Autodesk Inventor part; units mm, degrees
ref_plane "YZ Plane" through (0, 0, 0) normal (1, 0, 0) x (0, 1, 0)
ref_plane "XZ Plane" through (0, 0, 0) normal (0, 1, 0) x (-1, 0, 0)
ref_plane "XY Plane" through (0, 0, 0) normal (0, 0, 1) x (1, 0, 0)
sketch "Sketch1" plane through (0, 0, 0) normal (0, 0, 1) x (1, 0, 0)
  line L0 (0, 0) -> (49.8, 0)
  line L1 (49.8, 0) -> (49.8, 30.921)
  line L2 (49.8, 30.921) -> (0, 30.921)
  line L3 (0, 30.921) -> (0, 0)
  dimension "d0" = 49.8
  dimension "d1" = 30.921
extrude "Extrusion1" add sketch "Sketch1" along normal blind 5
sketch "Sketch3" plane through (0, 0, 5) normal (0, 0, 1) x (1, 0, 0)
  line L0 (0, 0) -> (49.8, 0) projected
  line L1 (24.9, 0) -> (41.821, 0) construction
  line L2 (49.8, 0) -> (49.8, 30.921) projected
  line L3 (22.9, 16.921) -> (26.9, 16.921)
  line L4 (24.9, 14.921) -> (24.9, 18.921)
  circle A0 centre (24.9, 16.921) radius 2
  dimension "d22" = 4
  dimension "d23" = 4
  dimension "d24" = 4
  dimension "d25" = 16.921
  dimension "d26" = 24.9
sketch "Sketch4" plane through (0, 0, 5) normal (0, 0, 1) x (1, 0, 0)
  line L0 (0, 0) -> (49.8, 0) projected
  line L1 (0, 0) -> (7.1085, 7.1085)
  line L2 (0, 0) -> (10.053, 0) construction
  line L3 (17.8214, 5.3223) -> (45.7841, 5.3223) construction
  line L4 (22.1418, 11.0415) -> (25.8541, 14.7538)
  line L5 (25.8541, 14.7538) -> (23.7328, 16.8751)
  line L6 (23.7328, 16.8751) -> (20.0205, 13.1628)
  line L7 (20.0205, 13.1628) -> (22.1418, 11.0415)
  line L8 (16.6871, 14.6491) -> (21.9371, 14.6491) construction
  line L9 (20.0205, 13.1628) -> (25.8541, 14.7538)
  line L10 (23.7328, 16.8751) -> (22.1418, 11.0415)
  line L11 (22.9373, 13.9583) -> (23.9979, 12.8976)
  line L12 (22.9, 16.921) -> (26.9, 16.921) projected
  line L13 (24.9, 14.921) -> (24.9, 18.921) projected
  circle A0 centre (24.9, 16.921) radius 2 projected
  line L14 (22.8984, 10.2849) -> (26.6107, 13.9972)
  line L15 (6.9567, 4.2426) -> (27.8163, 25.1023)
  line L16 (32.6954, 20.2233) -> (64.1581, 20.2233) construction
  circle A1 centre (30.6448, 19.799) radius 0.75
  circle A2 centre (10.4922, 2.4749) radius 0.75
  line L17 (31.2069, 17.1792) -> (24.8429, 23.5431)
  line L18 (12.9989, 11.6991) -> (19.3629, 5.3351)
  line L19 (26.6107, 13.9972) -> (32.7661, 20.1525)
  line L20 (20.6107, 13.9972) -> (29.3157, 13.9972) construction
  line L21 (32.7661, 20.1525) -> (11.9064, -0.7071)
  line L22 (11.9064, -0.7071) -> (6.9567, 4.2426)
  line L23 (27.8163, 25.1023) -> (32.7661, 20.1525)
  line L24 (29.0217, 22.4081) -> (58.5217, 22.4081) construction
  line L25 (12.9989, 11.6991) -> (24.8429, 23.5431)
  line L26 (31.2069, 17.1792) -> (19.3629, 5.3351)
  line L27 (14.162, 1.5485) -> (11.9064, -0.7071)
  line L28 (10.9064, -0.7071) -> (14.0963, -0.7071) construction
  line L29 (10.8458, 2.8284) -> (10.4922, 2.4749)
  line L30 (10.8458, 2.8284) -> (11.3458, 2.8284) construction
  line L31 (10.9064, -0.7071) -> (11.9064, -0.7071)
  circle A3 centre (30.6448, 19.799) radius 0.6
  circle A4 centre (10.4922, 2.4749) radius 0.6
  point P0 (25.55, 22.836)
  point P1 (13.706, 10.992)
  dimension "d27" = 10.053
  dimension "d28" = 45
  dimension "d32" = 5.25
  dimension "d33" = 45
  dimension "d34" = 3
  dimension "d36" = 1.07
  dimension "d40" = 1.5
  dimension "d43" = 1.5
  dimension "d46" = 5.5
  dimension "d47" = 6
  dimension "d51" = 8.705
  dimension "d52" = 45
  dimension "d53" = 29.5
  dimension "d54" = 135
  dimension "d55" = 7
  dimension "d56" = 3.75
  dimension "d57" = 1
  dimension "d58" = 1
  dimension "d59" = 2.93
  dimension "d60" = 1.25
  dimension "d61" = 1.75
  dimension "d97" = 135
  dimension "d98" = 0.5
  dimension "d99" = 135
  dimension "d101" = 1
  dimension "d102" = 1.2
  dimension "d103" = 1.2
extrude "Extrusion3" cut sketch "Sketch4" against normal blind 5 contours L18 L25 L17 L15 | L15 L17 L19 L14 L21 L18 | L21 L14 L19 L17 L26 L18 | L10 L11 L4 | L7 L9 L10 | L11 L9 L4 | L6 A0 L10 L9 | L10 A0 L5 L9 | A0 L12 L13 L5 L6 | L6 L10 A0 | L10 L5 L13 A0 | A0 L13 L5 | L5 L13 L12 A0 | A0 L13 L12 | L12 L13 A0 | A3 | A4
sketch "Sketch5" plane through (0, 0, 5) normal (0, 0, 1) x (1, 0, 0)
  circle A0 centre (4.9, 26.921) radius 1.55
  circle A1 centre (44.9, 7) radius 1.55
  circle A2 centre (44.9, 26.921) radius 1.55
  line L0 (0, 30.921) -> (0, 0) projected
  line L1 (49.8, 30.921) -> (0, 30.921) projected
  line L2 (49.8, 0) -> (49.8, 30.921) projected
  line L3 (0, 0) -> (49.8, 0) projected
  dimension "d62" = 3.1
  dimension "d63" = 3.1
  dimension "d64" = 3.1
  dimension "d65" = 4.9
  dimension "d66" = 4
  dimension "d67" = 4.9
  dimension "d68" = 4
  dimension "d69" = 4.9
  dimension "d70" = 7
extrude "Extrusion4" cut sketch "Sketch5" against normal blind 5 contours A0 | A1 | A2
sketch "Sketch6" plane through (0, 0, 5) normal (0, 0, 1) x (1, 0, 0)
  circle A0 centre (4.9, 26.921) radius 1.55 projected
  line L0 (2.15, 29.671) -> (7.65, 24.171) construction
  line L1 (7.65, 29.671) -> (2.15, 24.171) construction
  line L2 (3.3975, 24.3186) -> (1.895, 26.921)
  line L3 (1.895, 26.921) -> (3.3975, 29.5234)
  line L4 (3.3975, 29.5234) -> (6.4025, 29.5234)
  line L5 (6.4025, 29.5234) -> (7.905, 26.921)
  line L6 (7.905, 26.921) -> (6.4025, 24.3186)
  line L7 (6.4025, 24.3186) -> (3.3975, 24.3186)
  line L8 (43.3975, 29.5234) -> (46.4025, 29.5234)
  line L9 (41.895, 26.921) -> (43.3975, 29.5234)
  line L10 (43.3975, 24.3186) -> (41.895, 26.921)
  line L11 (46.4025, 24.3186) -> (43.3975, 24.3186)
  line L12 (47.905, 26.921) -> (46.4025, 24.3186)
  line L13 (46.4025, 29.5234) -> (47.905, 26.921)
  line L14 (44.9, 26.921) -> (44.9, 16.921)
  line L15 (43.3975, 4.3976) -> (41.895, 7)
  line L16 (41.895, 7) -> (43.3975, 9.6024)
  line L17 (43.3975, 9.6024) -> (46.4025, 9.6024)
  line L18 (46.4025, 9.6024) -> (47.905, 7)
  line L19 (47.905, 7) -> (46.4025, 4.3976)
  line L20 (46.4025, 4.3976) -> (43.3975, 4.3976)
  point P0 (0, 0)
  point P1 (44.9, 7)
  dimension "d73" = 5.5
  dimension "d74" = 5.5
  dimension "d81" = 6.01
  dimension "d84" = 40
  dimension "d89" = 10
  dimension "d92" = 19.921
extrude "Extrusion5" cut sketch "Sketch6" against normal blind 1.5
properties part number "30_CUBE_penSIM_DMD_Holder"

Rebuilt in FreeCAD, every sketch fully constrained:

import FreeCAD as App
import Part
import Sketcher
Q = App.Units.Quantity

doc = App.newDocument("Part")
body = doc.addObject("PartDesign::Body", "Body")

# Sketch on XY plane
sketch1 = doc.addObject("Sketcher::SketchObject", "Sketch")
body.addObject(sketch1)
sketch1.AttachmentSupport = (doc.XY_Plane, [""])
sketch1.MapMode = "FlatFace"
sketch1.addGeometry([
    Part.LineSegment(App.Vector(0, 30.921, 0), App.Vector(0, 0, 0)),
    Part.LineSegment(App.Vector(0, 0, 0), App.Vector(49.8, 0, 0)),
    Part.LineSegment(App.Vector(49.8, 0, 0), App.Vector(49.8, 30.921, 0)),
    Part.LineSegment(App.Vector(49.8, 30.921, 0), App.Vector(0, 30.921, 0)),
], False)
sketch1.addConstraint([
    Sketcher.Constraint("Coincident", 0, 2, 1, 1),
    Sketcher.Constraint("Coincident", 1, 2, 2, 1),
    Sketcher.Constraint("Coincident", 2, 2, 3, 1),
    Sketcher.Constraint("Coincident", 3, 2, 0, 1),
    Sketcher.Constraint("Vertical", 0),
    Sketcher.Constraint("Horizontal", 1),
    Sketcher.Constraint("Vertical", 2),
    Sketcher.Constraint("Horizontal", 3),
    Sketcher.Constraint("Coincident", 0, 2, -1, 1),
    Sketcher.Constraint("DistanceX", 1, 1, 1, 2, Q("49.8 mm")),
    Sketcher.Constraint("DistanceY", 0, 2, 0, 1, Q("30.921 mm")),
])
pad1 = doc.addObject("PartDesign::Pad", "Pad")
body.addObject(pad1)
pad1.Profile = sketch1
pad1.Length = 5

# Sketch on XY plane
sketch2 = doc.addObject("Sketcher::SketchObject", "Sketch001")
body.addObject(sketch2)
sketch2.AttachmentSupport = (doc.XY_Plane, [""])
sketch2.MapMode = "FlatFace"
sketch2.AttachmentOffset = App.Placement(App.Vector(0, 0, 5), App.Rotation())
sketch2.addGeometry([
    Part.LineSegment(App.Vector(12.9989, 11.6991, 0), App.Vector(19.3629, 5.3351, 0)),  # 0
    Part.LineSegment(App.Vector(19.3629, 5.3351, 0), App.Vector(31.2069, 17.1792, 0)),  # 1
    Part.LineSegment(App.Vector(31.2069, 17.1792, 0), App.Vector(24.8429, 23.5431, 0)),  # 2
    Part.LineSegment(App.Vector(24.8429, 23.5431, 0), App.Vector(12.9989, 11.6991, 0)),  # 3
    Part.Circle(App.Vector(30.6448, 19.799, 0), App.Vector(0, 0, 1), 0.6),  # 4
    Part.Circle(App.Vector(10.4922, 2.4749, 0), App.Vector(0, 0, 1), 0.6),  # 5
], False)
sketch2.addConstraint([
    Sketcher.Constraint("Coincident", 0, 2, 1, 1),
    Sketcher.Constraint("Coincident", 1, 2, 2, 1),
    Sketcher.Constraint("Coincident", 2, 2, 3, 1),
    Sketcher.Constraint("Coincident", 3, 2, 0, 1),
    Sketcher.Constraint("Equal", 4, 5),
    Sketcher.Constraint("Perpendicular", 0, 1),
    Sketcher.Constraint("Perpendicular", 1, 2),
    Sketcher.Constraint("Perpendicular", 2, 3),
    Sketcher.Constraint("Diameter", 4, Q("1.2 mm")),
    Sketcher.Constraint("Angle", 0, Q("-45 deg")),
    Sketcher.Constraint("Distance", 0, Q("9 mm")),
    Sketcher.Constraint("DistanceY", 3, 2, 4, 3, Q("8.1 mm")),
    Sketcher.Constraint("Distance", 1, Q("16.75 mm")),
    Sketcher.Constraint("DistanceY", -1, 1, 4, 3, Q("19.799 mm")),
    Sketcher.Constraint("DistanceY", -1, 1, 5, 3, Q("2.475 mm")),
    Sketcher.Constraint("DistanceX", -1, 1, 0, 2, Q("19.363 mm")),
    Sketcher.Constraint("DistanceX", 0, 2, 4, 3, Q("11.282 mm")),
    Sketcher.Constraint("DistanceX", -1, 1, 5, 3, Q("10.4922 mm")),
])
pocket1 = doc.addObject("PartDesign::Pocket", "Pocket")
body.addObject(pocket1)
pocket1.Profile = sketch2
pocket1.Length = 5

# Sketch on XY plane
sketch3 = doc.addObject("Sketcher::SketchObject", "Sketch002")
body.addObject(sketch3)
sketch3.AttachmentSupport = (doc.XY_Plane, [""])
sketch3.MapMode = "FlatFace"
sketch3.AttachmentOffset = App.Placement(App.Vector(0, 0, 5), App.Rotation())
sketch3.addGeometry([
    Part.Circle(App.Vector(4.9, 26.921, 0), App.Vector(0, 0, 1), 1.55),
    Part.Circle(App.Vector(44.9, 7, 0), App.Vector(0, 0, 1), 1.55),
    Part.Circle(App.Vector(44.9, 26.921, 0), App.Vector(0, 0, 1), 1.55),
], False)
sketch3.addConstraint([
    Sketcher.Constraint("Equal", 0, 1),
    Sketcher.Constraint("Equal", 1, 2),
    Sketcher.Constraint("Horizontal", 0, 3, 2, 3),
    Sketcher.Constraint("Vertical", 1, 3, 2, 3),
    Sketcher.Constraint("Diameter", 0, Q("3.1 mm")),
    Sketcher.Constraint("DistanceY", -1, 1, 1, 3, Q("7 mm")),
    Sketcher.Constraint("DistanceX", -1, 1, 0, 3, Q("4.9 mm")),
    Sketcher.Constraint("DistanceX", 0, 3, 1, 3, Q("40 mm")),
    Sketcher.Constraint("DistanceY", -1, 1, 0, 3, Q("26.921 mm")),
])
pocket2 = doc.addObject("PartDesign::Pocket", "Pocket001")
body.addObject(pocket2)
pocket2.Profile = sketch3
pocket2.Length = 5

# Sketch on XY plane
sketch4 = doc.addObject("Sketcher::SketchObject", "Sketch003")
body.addObject(sketch4)
sketch4.AttachmentSupport = (doc.XY_Plane, [""])
sketch4.MapMode = "FlatFace"
sketch4.AttachmentOffset = App.Placement(App.Vector(0, 0, 5), App.Rotation())
sketch4.addGeometry([
    Part.LineSegment(App.Vector(1.895, 26.921, 0), App.Vector(3.3975, 24.3186, 0)),  # 0
    Part.LineSegment(App.Vector(3.3975, 24.3186, 0), App.Vector(6.4025, 24.3186, 0)),  # 1
    Part.LineSegment(App.Vector(6.4025, 24.3186, 0), App.Vector(7.905, 26.921, 0)),  # 2
    Part.LineSegment(App.Vector(7.905, 26.921, 0), App.Vector(6.4025, 29.5234, 0)),  # 3
    Part.LineSegment(App.Vector(6.4025, 29.5234, 0), App.Vector(3.3975, 29.5234, 0)),  # 4
    Part.LineSegment(App.Vector(3.3975, 29.5234, 0), App.Vector(1.895, 26.921, 0)),  # 5
    Part.Circle(App.Vector(4.9, 26.921, 0), App.Vector(0, 0, 1), 1.55),  # 6
    Part.LineSegment(App.Vector(46.4025, 29.5234, 0), App.Vector(43.3975, 29.5234, 0)),  # 7
    Part.LineSegment(App.Vector(43.3975, 29.5234, 0), App.Vector(41.895, 26.921, 0)),  # 8
    Part.LineSegment(App.Vector(41.895, 26.921, 0), App.Vector(43.3975, 24.3186, 0)),  # 9
    Part.LineSegment(App.Vector(43.3975, 24.3186, 0), App.Vector(46.4025, 24.3186, 0)),  # 10
    Part.LineSegment(App.Vector(46.4025, 24.3186, 0), App.Vector(47.905, 26.921, 0)),  # 11
    Part.LineSegment(App.Vector(47.905, 26.921, 0), App.Vector(46.4025, 29.5234, 0)),  # 12
    Part.LineSegment(App.Vector(41.895, 7, 0), App.Vector(43.3975, 4.3976, 0)),  # 13
    Part.LineSegment(App.Vector(43.3975, 4.3976, 0), App.Vector(46.4025, 4.3976, 0)),  # 14
    Part.LineSegment(App.Vector(46.4025, 4.3976, 0), App.Vector(47.905, 7, 0)),  # 15
    Part.LineSegment(App.Vector(47.905, 7, 0), App.Vector(46.4025, 9.6024, 0)),  # 16
    Part.LineSegment(App.Vector(46.4025, 9.6024, 0), App.Vector(43.3975, 9.6024, 0)),  # 17
    Part.LineSegment(App.Vector(43.3975, 9.6024, 0), App.Vector(41.895, 7, 0)),  # 18
], False)
sketch4.addConstraint([
    Sketcher.Constraint("Coincident", 0, 2, 1, 1),
    Sketcher.Constraint("Coincident", 1, 2, 2, 1),
    Sketcher.Constraint("Coincident", 2, 2, 3, 1),
    Sketcher.Constraint("Coincident", 3, 2, 4, 1),
    Sketcher.Constraint("Coincident", 4, 2, 5, 1),
    Sketcher.Constraint("Coincident", 5, 2, 0, 1),
    Sketcher.Constraint("Coincident", 7, 2, 8, 1),
    Sketcher.Constraint("Coincident", 8, 2, 9, 1),
    Sketcher.Constraint("Coincident", 9, 2, 10, 1),
    Sketcher.Constraint("Coincident", 10, 2, 11, 1),
    Sketcher.Constraint("Coincident", 11, 2, 12, 1),
    Sketcher.Constraint("Coincident", 12, 2, 7, 1),
    Sketcher.Constraint("Coincident", 13, 2, 14, 1),
    Sketcher.Constraint("Coincident", 14, 2, 15, 1),
    Sketcher.Constraint("Coincident", 15, 2, 16, 1),
    Sketcher.Constraint("Coincident", 16, 2, 17, 1),
    Sketcher.Constraint("Coincident", 17, 2, 18, 1),
    Sketcher.Constraint("Coincident", 18, 2, 13, 1),
    Sketcher.Constraint("Horizontal", 1),
    Sketcher.Constraint("Horizontal", 4),
    Sketcher.Constraint("Horizontal", 7),
    Sketcher.Constraint("Horizontal", 10),
    Sketcher.Constraint("Horizontal", 14),
    Sketcher.Constraint("Horizontal", 17),
    Sketcher.Constraint("Parallel", 0, 3),
    Sketcher.Constraint("Parallel", 2, 5),
    Sketcher.Constraint("Parallel", 5, 8),
    Sketcher.Constraint("Parallel", 3, 9),
    Sketcher.Constraint("Parallel", 8, 11),
    Sketcher.Constraint("Parallel", 9, 12),
    Sketcher.Constraint("Parallel", 12, 13),
    Sketcher.Constraint("Parallel", 11, 15),
    Sketcher.Constraint("Parallel", 13, 16),
    Sketcher.Constraint("Parallel", 15, 18),
    Sketcher.Constraint("Horizontal", 6, 3, 2, 2),
    Sketcher.Constraint("Horizontal", 2, 2, 5, 2),
    Sketcher.Constraint("Horizontal", 4, 2, 7, 2),
    Sketcher.Constraint("Horizontal", 5, 2, 8, 2),
    Sketcher.Constraint("Horizontal", 1, 2, 9, 2),
    Sketcher.Constraint("Horizontal", 8, 2, 11, 2),
    Sketcher.Constraint("Horizontal", 15, 2, 18, 2),
    Sketcher.Constraint("Vertical", 1, 2, 3, 2),
    Sketcher.Constraint("Vertical", 0, 2, 4, 2),
    Sketcher.Constraint("Vertical", 9, 2, 13, 2),
    Sketcher.Constraint("Vertical", 12, 2, 14, 2),
    Sketcher.Constraint("Vertical", 11, 2, 15, 2),
    Sketcher.Constraint("Vertical", 14, 2, 16, 2),
    Sketcher.Constraint("Equal", 4, 7),
    Sketcher.Constraint("DistanceX", 4, 2, 7, 2, Q("40 mm")),
    Sketcher.Constraint("Diameter", 6, Q("3.1 mm")),
    Sketcher.Constraint("Angle", 0, Q("-60 deg")),
    Sketcher.Constraint("DistanceX", 8, 2, 11, 2, Q("6.01 mm")),
    Sketcher.Constraint("DistanceY", -1, 1, 15, 2, Q("7 mm")),
    Sketcher.Constraint("DistanceY", 13, 2, 9, 2, Q("19.921 mm")),
    Sketcher.Constraint("DistanceX", -1, 1, 6, 3, Q("4.9 mm")),
    Sketcher.Constraint("DistanceX", 1, 1, 1, 2, Q("3.005 mm")),
    Sketcher.Constraint("DistanceX", -1, 1, 2, 2, Q("7.905 mm")),
])
pocket3 = doc.addObject("PartDesign::Pocket", "Pocket002")
body.addObject(pocket3)
pocket3.Profile = sketch4
pocket3.Length = 1.5

doc.recompute()
